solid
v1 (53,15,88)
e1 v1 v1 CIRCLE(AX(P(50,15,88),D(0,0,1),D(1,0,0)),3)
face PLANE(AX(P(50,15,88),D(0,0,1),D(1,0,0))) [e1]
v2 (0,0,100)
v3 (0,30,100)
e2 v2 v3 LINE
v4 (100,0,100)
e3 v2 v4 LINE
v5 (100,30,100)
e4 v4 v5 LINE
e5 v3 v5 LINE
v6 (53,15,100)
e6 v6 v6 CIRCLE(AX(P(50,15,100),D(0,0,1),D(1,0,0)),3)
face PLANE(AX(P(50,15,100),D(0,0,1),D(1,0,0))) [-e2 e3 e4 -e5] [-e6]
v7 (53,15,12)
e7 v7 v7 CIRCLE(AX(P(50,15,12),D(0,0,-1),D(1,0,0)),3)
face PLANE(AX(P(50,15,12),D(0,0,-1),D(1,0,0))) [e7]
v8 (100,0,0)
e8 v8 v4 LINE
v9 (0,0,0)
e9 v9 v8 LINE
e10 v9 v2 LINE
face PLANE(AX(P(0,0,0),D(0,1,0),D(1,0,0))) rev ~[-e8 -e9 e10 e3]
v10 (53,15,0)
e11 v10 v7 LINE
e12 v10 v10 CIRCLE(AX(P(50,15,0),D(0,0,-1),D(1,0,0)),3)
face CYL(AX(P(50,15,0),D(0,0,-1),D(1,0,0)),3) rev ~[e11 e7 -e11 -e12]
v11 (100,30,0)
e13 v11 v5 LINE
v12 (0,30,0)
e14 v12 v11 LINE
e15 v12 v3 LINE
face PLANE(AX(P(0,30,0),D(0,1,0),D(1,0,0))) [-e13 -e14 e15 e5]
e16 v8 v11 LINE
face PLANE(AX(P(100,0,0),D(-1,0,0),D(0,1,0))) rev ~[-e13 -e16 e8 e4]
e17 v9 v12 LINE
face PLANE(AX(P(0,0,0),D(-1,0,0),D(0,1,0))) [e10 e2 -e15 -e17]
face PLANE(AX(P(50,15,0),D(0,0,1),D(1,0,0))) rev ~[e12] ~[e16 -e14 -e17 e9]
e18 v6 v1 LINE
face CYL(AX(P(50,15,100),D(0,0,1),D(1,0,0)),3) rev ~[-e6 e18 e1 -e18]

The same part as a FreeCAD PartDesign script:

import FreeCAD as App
import Part
import Sketcher
from FreeCAD import Vector

doc = App.newDocument("Part")
params = doc.addObject("Spreadsheet::Sheet", "Params")
for row, (alias, value) in enumerate([
    ("sketch1_width", "100 mm"),
    ("sketch1_height", "30 mm"),
    ("pad1_length", "100 mm"),
    ("sketch2_diameter", "6 mm"),
    ("pocket1_length", "12 mm"),
    ("sketch3_diameter", "6 mm"),
    ("pocket2_length", "12 mm"),
], start=1):
    params.set(f"A{row}", alias)
    params.set(f"B{row}", "=" + value)
    params.setAlias(f"B{row}", alias)

body = doc.addObject("PartDesign::Body", "Body")

sketch1 = doc.addObject("Sketcher::SketchObject", "Sketch")
body.addObject(sketch1)
sketch1.AttachmentSupport = (doc.XY_Plane, [""])
sketch1.MapMode = "FlatFace"
sketch1.addGeometry(Part.LineSegment(Vector(0, 30, 0), Vector(0, 0, 0)), False)
sketch1.addGeometry(Part.LineSegment(Vector(0, 0, 0), Vector(100, 0, 0)), False)
sketch1.addGeometry(Part.LineSegment(Vector(100, 0, 0), Vector(100, 30, 0)), False)
sketch1.addGeometry(Part.LineSegment(Vector(100, 30, 0), Vector(0, 30, 0)), False)
sketch1.addConstraint(Sketcher.Constraint("Coincident", 0, 2, 1, 1))
sketch1.addConstraint(Sketcher.Constraint("Coincident", 1, 2, 2, 1))
sketch1.addConstraint(Sketcher.Constraint("Coincident", 2, 2, 3, 1))
sketch1.addConstraint(Sketcher.Constraint("Coincident", 3, 2, 0, 1))
sketch1.addConstraint(Sketcher.Constraint("Vertical", 0))
sketch1.addConstraint(Sketcher.Constraint("Horizontal", 1))
sketch1.addConstraint(Sketcher.Constraint("Vertical", 2))
sketch1.addConstraint(Sketcher.Constraint("Horizontal", 3))
sketch1.addConstraint(Sketcher.Constraint("Coincident", 0, 2, -1, 1))
sketch1.addConstraint(Sketcher.Constraint("DistanceX", 1, 1, 1, 2, 100.0))
sketch1.addConstraint(Sketcher.Constraint("DistanceY", 0, 2, 0, 1, 30.0))
sketch1.setExpression("Constraints[9]", "Params.sketch1_width")
sketch1.setExpression("Constraints[10]", "Params.sketch1_height")
pad1 = doc.addObject("PartDesign::Pad", "Pad")
body.addObject(pad1)
pad1.Profile = sketch1
pad1.setExpression("Length", "Params.pad1_length")

sketch2 = doc.addObject("Sketcher::SketchObject", "Sketch001")
body.addObject(sketch2)
sketch2.AttachmentSupport = (doc.XY_Plane, [""])
sketch2.MapMode = "FlatFace"
sketch2.addGeometry(Part.Circle(Vector(50, 15, 0), Vector(0, 0, 1), 3), False)
sketch2.addConstraint(Sketcher.Constraint("Diameter", 0, 6.0))
sketch2.addConstraint(Sketcher.Constraint("DistanceX", -1, 1, 0, 3, 50.0))
sketch2.addConstraint(Sketcher.Constraint("DistanceY", -1, 1, 0, 3, 15.0))
sketch2.setExpression("Constraints[0]", "Params.sketch2_diameter")
pocket1 = doc.addObject("PartDesign::Pocket", "Pocket")
body.addObject(pocket1)
pocket1.Profile = sketch2
pocket1.setExpression("Length", "Params.pocket1_length")
pocket1.Reversed = True

sketch3 = doc.addObject("Sketcher::SketchObject", "Sketch002")
body.addObject(sketch3)
sketch3.AttachmentSupport = (doc.XY_Plane, [""])
sketch3.MapMode = "FlatFace"
sketch3.AttachmentOffset = App.Placement(Vector(0, 0, 100), App.Rotation())
sketch3.addGeometry(Part.Circle(Vector(50, 15, 0), Vector(0, 0, 1), 3), False)
sketch3.addConstraint(Sketcher.Constraint("Diameter", 0, 6.0))
sketch3.addConstraint(Sketcher.Constraint("DistanceX", -1, 1, 0, 3, 50.0))
sketch3.addConstraint(Sketcher.Constraint("DistanceY", -1, 1, 0, 3, 15.0))
sketch3.setExpression("Constraints[0]", "Params.sketch3_diameter")
pocket2 = doc.addObject("PartDesign::Pocket", "Pocket001")
body.addObject(pocket2)
pocket2.Profile = sketch3
pocket2.setExpression("Length", "Params.pocket2_length")

doc.recompute()
